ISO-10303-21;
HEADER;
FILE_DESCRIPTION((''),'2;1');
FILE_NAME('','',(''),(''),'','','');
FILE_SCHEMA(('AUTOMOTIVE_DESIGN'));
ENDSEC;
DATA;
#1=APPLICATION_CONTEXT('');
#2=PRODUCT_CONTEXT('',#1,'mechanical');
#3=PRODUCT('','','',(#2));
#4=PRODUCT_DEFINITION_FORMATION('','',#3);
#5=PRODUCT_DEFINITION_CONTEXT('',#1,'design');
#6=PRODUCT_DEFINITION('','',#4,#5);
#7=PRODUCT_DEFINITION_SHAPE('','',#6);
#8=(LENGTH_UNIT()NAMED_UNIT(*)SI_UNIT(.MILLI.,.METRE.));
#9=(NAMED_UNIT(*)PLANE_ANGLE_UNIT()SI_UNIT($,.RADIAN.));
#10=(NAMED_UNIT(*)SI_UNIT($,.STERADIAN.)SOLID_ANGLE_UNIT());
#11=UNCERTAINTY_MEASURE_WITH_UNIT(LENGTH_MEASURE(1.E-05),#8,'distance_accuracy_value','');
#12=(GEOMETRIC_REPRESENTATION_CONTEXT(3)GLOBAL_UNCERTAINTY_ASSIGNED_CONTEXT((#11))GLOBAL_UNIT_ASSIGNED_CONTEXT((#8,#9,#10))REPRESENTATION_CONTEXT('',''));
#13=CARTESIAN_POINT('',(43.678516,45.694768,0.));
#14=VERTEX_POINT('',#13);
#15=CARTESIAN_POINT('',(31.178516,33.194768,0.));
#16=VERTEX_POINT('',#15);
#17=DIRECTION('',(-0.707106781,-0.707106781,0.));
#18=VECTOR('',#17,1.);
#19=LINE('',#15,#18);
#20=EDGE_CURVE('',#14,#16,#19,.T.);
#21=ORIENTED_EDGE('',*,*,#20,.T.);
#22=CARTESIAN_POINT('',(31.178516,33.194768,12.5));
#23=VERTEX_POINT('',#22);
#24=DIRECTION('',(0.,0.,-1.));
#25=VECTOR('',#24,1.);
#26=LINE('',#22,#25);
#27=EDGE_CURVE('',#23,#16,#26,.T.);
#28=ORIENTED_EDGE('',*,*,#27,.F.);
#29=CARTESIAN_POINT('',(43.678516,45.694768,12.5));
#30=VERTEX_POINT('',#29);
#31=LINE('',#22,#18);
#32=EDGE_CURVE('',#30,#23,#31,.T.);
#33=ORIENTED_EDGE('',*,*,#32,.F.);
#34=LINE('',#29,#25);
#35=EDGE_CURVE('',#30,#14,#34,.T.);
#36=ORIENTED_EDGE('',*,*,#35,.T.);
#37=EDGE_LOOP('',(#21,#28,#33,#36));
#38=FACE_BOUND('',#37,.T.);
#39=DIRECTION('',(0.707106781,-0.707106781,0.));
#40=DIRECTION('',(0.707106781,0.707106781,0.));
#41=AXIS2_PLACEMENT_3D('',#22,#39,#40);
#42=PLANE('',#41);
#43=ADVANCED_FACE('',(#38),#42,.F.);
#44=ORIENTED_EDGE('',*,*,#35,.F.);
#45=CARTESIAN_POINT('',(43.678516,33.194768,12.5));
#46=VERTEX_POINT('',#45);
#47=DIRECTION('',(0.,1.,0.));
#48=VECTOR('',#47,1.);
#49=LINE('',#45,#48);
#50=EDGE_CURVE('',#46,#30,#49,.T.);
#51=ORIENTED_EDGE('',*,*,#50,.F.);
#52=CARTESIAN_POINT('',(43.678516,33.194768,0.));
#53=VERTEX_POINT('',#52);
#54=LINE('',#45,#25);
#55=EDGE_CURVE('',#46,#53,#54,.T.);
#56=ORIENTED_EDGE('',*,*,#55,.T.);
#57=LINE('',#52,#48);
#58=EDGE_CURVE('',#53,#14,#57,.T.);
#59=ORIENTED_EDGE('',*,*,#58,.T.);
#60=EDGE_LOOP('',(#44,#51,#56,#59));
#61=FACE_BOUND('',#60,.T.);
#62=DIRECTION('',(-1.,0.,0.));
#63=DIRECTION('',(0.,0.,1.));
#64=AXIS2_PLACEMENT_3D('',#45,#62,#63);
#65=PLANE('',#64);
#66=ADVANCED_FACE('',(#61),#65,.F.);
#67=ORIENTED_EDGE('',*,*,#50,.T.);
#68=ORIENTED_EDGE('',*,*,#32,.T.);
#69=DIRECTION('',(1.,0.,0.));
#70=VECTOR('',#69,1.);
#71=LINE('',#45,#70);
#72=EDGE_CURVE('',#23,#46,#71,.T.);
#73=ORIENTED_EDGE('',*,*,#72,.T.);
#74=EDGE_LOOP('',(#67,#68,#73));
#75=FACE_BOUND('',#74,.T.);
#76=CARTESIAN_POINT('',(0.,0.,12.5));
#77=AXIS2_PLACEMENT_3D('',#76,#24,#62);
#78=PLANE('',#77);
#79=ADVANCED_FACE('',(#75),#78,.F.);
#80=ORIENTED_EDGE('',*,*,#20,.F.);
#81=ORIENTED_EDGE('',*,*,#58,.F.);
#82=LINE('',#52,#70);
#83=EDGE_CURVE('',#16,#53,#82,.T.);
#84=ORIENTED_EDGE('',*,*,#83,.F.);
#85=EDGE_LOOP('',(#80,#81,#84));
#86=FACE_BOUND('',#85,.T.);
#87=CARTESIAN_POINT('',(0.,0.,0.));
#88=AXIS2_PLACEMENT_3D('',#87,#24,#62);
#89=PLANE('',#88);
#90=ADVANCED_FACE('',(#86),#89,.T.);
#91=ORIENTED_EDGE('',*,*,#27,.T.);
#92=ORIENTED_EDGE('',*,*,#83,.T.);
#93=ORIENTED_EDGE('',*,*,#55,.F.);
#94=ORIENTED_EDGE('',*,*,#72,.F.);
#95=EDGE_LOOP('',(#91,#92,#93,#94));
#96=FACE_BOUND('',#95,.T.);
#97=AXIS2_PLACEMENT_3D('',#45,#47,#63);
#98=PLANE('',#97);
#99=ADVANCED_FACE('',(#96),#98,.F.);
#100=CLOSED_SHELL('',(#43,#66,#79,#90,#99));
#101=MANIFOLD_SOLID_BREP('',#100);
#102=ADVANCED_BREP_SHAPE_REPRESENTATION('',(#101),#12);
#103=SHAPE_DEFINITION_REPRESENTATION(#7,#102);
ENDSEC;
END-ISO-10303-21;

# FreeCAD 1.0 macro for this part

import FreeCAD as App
import Part
import Sketcher
from FreeCAD import Vector
Q = App.Units.Quantity


def add_polygon(sketch, points):
    """Adds a closed chain of lines whose ends are joined by coincident constraints."""
    first, n = sketch.GeometryCount, len(points)
    for a, b in zip(points, points[1:] + points[:1]):
        sketch.addGeometry(Part.LineSegment(App.Vector(*a, 0), App.Vector(*b, 0)), False)
    for i in range(n):
        sketch.addConstraint(Sketcher.Constraint("Coincident", first + i, 2, first + (i + 1) % n, 1))

doc = App.newDocument("Part")
params = doc.addObject("Spreadsheet::Sheet", "Params")
for row, (alias, value) in enumerate([
    ("sketch1_width", "12.5 mm"),
    ("pad1_length", "12.5 mm"),
], start=1):
    params.set(f"A{row}", alias)
    params.set(f"B{row}", "=" + value)
    params.setAlias(f"B{row}", alias)

body = doc.addObject("PartDesign::Body", "Body")

sketch1 = body.newObject("Sketcher::SketchObject", "Sketch")
sketch1.AttachmentSupport = (doc.getObject("XY_Plane"), [""])
sketch1.MapMode = "FlatFace"
add_polygon(sketch1, [(44, 33), (44, 46), (31, 33)])
sketch1.addConstraint(Sketcher.Constraint("Vertical", 0))
sketch1.addConstraint(Sketcher.Constraint("Horizontal", 2))
sketch1.addConstraint(Sketcher.Constraint("Equal", 2, 0))
sketch1.addConstraint(Sketcher.Constraint("DistanceX", 2, 1, 2, 2, Q("12.5 mm")))
sketch1.addConstraint(Sketcher.Constraint("DistanceX", -1, 1, 0, 2, Q("43.678516 mm")))
sketch1.addConstraint(Sketcher.Constraint("DistanceY", -1, 1, 0, 2, Q("45.694768 mm")))
sketch1.setExpression("Constraints[6]", "Params.sketch1_width")
pad1 = body.newObject("PartDesign::Pad", "Pad")
pad1.Profile = sketch1
pad1.setExpression("Length", "Params.pad1_length")

doc.recompute()
